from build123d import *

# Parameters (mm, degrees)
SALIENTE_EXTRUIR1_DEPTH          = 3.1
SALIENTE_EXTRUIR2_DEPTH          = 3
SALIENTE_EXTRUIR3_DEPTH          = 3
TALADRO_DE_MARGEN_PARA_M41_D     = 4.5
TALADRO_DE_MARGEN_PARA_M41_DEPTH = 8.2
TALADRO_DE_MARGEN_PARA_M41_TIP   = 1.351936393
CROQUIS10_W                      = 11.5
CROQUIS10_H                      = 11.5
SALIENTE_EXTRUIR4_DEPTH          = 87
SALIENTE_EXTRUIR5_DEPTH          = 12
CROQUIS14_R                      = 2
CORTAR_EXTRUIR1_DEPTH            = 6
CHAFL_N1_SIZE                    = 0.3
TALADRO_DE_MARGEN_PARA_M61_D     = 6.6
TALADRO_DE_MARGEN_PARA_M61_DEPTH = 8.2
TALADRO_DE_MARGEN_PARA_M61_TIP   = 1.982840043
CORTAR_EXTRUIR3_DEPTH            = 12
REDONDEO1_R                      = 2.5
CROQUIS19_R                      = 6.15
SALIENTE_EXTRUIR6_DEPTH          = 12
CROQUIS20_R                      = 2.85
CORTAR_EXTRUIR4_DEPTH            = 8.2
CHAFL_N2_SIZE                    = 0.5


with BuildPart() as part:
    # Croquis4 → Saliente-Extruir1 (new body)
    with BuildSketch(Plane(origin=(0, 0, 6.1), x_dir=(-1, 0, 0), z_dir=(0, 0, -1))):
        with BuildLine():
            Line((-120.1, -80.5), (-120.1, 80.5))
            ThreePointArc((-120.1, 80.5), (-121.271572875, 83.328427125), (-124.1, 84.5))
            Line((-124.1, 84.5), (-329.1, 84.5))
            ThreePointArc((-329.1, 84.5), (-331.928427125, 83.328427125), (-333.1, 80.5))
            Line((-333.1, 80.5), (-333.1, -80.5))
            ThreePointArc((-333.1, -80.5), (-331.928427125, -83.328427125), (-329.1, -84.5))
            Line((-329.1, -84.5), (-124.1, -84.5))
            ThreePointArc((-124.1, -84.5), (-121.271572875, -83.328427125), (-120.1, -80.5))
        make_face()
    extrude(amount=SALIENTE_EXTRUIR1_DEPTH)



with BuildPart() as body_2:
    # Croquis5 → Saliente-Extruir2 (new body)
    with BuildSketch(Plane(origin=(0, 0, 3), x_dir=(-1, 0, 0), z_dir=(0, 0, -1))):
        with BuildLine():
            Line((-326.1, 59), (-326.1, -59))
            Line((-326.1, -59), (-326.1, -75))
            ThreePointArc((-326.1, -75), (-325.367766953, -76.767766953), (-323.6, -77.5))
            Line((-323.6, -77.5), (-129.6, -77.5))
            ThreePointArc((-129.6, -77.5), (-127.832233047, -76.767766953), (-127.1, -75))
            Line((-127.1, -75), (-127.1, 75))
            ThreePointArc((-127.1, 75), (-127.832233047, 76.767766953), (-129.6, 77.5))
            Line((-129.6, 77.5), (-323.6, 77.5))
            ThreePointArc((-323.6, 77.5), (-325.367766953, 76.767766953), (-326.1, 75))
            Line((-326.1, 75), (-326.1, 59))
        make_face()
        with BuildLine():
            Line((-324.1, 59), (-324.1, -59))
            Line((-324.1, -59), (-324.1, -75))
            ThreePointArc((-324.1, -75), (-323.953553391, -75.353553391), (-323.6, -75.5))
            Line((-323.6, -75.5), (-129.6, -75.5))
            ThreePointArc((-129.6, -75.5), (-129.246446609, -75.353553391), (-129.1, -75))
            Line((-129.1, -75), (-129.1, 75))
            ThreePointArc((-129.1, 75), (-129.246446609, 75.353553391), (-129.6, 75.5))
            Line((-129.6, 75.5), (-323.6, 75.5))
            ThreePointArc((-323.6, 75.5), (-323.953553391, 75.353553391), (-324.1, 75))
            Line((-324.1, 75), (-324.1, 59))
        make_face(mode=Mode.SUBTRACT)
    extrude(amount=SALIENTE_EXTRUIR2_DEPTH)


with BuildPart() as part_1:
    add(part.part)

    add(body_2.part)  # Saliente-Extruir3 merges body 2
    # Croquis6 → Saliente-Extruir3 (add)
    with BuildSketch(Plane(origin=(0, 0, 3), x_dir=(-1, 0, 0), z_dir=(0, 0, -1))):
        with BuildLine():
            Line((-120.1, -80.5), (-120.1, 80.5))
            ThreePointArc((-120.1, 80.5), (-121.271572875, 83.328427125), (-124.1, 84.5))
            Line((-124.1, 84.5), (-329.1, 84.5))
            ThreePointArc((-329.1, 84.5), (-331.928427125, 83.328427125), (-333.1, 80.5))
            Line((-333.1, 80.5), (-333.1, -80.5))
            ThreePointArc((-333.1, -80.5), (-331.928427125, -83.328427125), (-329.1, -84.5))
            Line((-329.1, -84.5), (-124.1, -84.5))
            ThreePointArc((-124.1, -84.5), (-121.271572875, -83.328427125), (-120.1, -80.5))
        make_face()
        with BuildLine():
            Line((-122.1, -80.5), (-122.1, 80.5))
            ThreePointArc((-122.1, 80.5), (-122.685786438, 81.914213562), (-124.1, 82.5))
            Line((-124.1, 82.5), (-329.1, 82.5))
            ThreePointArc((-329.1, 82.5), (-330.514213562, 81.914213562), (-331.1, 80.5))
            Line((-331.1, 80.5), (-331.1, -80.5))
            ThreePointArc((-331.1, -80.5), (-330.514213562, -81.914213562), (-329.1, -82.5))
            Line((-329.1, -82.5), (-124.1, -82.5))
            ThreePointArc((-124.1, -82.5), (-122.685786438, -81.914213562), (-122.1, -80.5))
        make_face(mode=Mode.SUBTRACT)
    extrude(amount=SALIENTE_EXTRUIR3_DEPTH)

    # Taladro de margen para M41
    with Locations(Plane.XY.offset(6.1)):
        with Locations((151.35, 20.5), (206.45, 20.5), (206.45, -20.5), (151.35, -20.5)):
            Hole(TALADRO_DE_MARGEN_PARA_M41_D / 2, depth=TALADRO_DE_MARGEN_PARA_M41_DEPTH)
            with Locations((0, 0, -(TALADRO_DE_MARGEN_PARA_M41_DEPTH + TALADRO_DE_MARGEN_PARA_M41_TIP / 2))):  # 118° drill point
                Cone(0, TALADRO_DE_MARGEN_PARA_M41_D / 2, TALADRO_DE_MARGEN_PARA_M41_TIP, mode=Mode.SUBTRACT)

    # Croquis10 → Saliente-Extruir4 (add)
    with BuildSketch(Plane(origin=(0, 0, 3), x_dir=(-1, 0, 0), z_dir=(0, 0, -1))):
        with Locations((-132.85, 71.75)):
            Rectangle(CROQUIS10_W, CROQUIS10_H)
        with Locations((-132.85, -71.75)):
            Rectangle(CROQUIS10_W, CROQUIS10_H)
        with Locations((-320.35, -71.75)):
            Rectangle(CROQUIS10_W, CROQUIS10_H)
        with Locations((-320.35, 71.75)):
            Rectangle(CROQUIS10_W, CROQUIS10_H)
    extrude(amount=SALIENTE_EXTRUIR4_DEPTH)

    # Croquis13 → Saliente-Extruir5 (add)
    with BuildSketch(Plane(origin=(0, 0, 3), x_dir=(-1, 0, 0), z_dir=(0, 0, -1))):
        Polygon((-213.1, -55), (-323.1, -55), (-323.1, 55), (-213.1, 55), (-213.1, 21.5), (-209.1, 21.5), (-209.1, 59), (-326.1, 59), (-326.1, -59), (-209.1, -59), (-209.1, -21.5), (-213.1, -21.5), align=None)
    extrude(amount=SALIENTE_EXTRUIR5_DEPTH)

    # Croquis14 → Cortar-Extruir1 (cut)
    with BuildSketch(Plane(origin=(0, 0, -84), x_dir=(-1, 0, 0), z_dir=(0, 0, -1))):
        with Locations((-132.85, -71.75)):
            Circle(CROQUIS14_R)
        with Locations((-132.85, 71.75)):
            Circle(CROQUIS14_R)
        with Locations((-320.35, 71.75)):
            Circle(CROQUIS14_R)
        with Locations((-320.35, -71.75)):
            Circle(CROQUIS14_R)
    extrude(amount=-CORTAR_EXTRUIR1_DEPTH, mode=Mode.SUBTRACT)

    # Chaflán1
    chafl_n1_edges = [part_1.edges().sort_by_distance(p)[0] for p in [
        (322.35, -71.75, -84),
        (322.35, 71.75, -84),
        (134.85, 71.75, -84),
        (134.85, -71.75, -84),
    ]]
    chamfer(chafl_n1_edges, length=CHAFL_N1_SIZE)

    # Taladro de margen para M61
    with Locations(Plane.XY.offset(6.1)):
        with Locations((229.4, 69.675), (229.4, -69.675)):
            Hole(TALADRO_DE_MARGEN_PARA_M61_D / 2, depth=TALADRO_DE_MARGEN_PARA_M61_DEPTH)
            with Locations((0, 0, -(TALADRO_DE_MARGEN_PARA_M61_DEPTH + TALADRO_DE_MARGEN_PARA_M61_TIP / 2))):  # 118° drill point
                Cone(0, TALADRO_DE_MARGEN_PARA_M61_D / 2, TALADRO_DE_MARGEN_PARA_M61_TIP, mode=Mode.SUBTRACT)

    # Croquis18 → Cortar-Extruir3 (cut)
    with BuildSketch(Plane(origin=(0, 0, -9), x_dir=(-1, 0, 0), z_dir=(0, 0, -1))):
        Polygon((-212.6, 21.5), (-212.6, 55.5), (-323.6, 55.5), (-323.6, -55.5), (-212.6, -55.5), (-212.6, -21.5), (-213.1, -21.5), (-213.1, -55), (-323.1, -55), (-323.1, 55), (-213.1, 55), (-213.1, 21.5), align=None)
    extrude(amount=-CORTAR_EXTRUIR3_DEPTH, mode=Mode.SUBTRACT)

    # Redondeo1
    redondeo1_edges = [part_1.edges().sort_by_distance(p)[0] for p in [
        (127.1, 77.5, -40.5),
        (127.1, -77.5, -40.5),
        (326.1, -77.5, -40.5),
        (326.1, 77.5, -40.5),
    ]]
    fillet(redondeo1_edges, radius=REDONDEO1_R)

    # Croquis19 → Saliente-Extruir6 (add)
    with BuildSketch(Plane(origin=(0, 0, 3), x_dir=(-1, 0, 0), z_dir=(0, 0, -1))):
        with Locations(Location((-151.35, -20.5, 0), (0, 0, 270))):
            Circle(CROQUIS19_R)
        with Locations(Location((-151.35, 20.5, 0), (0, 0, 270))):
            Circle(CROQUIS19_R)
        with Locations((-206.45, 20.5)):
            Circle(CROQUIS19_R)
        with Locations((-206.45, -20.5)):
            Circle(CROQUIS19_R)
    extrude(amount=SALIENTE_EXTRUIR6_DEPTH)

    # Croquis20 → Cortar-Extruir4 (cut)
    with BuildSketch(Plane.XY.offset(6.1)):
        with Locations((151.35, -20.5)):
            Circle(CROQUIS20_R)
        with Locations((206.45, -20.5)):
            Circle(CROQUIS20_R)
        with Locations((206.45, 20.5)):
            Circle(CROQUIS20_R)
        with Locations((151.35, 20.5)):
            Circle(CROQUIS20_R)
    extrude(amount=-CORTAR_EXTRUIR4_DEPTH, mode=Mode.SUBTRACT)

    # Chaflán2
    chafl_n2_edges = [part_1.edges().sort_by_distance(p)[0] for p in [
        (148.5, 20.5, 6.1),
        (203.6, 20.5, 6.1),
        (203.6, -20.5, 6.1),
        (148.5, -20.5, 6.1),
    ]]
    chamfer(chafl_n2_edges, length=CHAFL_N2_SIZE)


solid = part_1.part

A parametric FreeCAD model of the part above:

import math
import FreeCAD as App
import Part
import Sketcher

V = App.Vector


def edges_at(feature, points):
    """Names of the edges that pass closest to the given points."""
    edges = feature.Shape.Edges
    near = lambda p: min(range(len(edges)), key=lambda i: edges[i].distToShape(Part.Vertex(*p))[0])
    return sorted({f"Edge{near(p) + 1}" for p in points})

doc = App.newDocument("Part")
body = doc.addObject("PartDesign::Body", "Body")

# Sketch on XY plane
sketch1 = body.newObject("Sketcher::SketchObject", "Sketch")
sketch1.AttachmentSupport = (doc.getObject("XY_Plane"), [""])
sketch1.MapMode = "FlatFace"
sketch1.AttachmentOffset = App.Placement(V(0, 0, 6.1), App.Rotation())
sketch1.addGeometry([
    Part.LineSegment(V(120.1, -80.5, 0), V(120.1, 80.5, 0)),  # 0
    Part.ArcOfCircle(Part.Circle(V(124.1, 80.5, 0), V(0, 0, 1), 4), math.radians(90), math.radians(180)),  # 1
    Part.LineSegment(V(124.1, 84.5, 0), V(329.1, 84.5, 0)),  # 2
    Part.ArcOfCircle(Part.Circle(V(329.1, 80.5, 0), V(0, 0, 1), 4), math.radians(0), math.radians(90)),  # 3
    Part.LineSegment(V(333.1, 80.5, 0), V(333.1, -80.5, 0)),  # 4
    Part.ArcOfCircle(Part.Circle(V(329.1, -80.5, 0), V(0, 0, 1), 4), math.radians(-90), math.radians(0)),  # 5
    Part.LineSegment(V(329.1, -84.5, 0), V(124.1, -84.5, 0)),  # 6
    Part.ArcOfCircle(Part.Circle(V(124.1, -80.5, 0), V(0, 0, 1), 4), math.radians(180), math.radians(270)),  # 7
], False)
sketch1.addConstraint([
    Sketcher.Constraint("Tangent", 0, 2, 1, 2),
    Sketcher.Constraint("Tangent", 1, 1, 2, 1),
    Sketcher.Constraint("Tangent", 2, 2, 3, 2),
    Sketcher.Constraint("Tangent", 3, 1, 4, 1),
    Sketcher.Constraint("Tangent", 4, 2, 5, 2),
    Sketcher.Constraint("Tangent", 5, 1, 6, 1),
    Sketcher.Constraint("Tangent", 6, 2, 7, 2),
    Sketcher.Constraint("Tangent", 7, 1, 0, 1),
    Sketcher.Constraint("Vertical", 0),
    Sketcher.Constraint("Horizontal", 2),
    Sketcher.Constraint("Vertical", 4),
    Sketcher.Constraint("Horizontal", 6),
    Sketcher.Constraint("Equal", 1, 3),
    Sketcher.Constraint("Equal", 3, 5),
    Sketcher.Constraint("Equal", 5, 7),
    Sketcher.Constraint("Radius", 1, 4.0),
    Sketcher.Constraint("DistanceX", 2, 1, 2, 2, 205.0),
    Sketcher.Constraint("DistanceY", 0, 1, 0, 2, 161.0),
    Sketcher.Constraint("DistanceX", -1, 1, 1, 3, 124.1),
    Sketcher.Constraint("DistanceY", -1, 1, 1, 3, 80.5),
])
pad1 = body.newObject("PartDesign::Pad", "Pad")
pad1.Profile = sketch1
pad1.Length = 3.1
pad1.Reversed = True
body2 = doc.addObject("PartDesign::Body", "Body001")

# Sketch on XY plane
sketch2 = body2.newObject("Sketcher::SketchObject", "Sketch001")
sketch2.AttachmentSupport = (doc.getObject("XY_Plane001"), [""])
sketch2.MapMode = "FlatFace"
sketch2.AttachmentOffset = App.Placement(V(0, 0, 3), App.Rotation())
sketch2.addGeometry([
    Part.ArcOfCircle(Part.Circle(V(323.6, -75, 0), V(0, 0, 1), 2.5), math.radians(-90), math.radians(0)),  # 0
    Part.LineSegment(V(323.6, -77.5, 0), V(129.6, -77.5, 0)),  # 1
    Part.ArcOfCircle(Part.Circle(V(129.6, -75, 0), V(0, 0, 1), 2.5), math.radians(180), math.radians(270)),  # 2
    Part.LineSegment(V(127.1, -75, 0), V(127.1, 75, 0)),  # 3
    Part.ArcOfCircle(Part.Circle(V(129.6, 75, 0), V(0, 0, 1), 2.5), math.radians(90), math.radians(180)),  # 4
    Part.LineSegment(V(129.6, 77.5, 0), V(323.6, 77.5, 0)),  # 5
    Part.ArcOfCircle(Part.Circle(V(323.6, 75, 0), V(0, 0, 1), 2.5), math.radians(0), math.radians(90)),  # 6
    Part.LineSegment(V(326.1, 75, 0), V(326.1, -75, 0)),  # 7
    Part.ArcOfCircle(Part.Circle(V(323.6, -75, 0), V(0, 0, 1), 0.5), math.radians(-90), math.radians(0)),  # 8
    Part.LineSegment(V(324.1, -75, 0), V(324.1, 75, 0)),  # 9
    Part.ArcOfCircle(Part.Circle(V(323.6, 75, 0), V(0, 0, 1), 0.5), math.radians(0), math.radians(90)),  # 10
    Part.LineSegment(V(323.6, 75.5, 0), V(129.6, 75.5, 0)),  # 11
    Part.ArcOfCircle(Part.Circle(V(129.6, 75, 0), V(0, 0, 1), 0.5), math.radians(90), math.radians(180)),  # 12
    Part.LineSegment(V(129.1, 75, 0), V(129.1, -75, 0)),  # 13
    Part.ArcOfCircle(Part.Circle(V(129.6, -75, 0), V(0, 0, 1), 0.5), math.radians(180), math.radians(270)),  # 14
    Part.LineSegment(V(129.6, -75.5, 0), V(323.6, -75.5, 0)),  # 15
], False)
sketch2.addConstraint([
    Sketcher.Constraint("Tangent", 0, 1, 1, 1),
    Sketcher.Constraint("Tangent", 1, 2, 2, 2),
    Sketcher.Constraint("Tangent", 2, 1, 3, 1),
    Sketcher.Constraint("Tangent", 3, 2, 4, 2),
    Sketcher.Constraint("Tangent", 4, 1, 5, 1),
    Sketcher.Constraint("Tangent", 5, 2, 6, 2),
    Sketcher.Constraint("Tangent", 6, 1, 7, 1),
    Sketcher.Constraint("Tangent", 7, 2, 0, 2),
    Sketcher.Constraint("Tangent", 8, 2, 9, 1),
    Sketcher.Constraint("Tangent", 9, 2, 10, 1),
    Sketcher.Constraint("Tangent", 10, 2, 11, 1),
    Sketcher.Constraint("Tangent", 11, 2, 12, 1),
    Sketcher.Constraint("Tangent", 12, 2, 13, 1),
    Sketcher.Constraint("Tangent", 13, 2, 14, 1),
    Sketcher.Constraint("Tangent", 14, 2, 15, 1),
    Sketcher.Constraint("Tangent", 15, 2, 8, 1),
    Sketcher.Constraint("Horizontal", 1),
    Sketcher.Constraint("Vertical", 3),
    Sketcher.Constraint("Horizontal", 5),
    Sketcher.Constraint("Vertical", 7),
    Sketcher.Constraint("Vertical", 9),
    Sketcher.Constraint("Horizontal", 11),
    Sketcher.Constraint("Vertical", 13),
    Sketcher.Constraint("Horizontal", 15),
    Sketcher.Constraint("Coincident", 8, 3, 0, 3),
    Sketcher.Constraint("Coincident", 10, 3, 6, 3),
    Sketcher.Constraint("Coincident", 12, 3, 4, 3),
    Sketcher.Constraint("Equal", 0, 2),
    Sketcher.Constraint("Equal", 2, 4),
    Sketcher.Constraint("Equal", 4, 6),
    Sketcher.Constraint("Equal", 12, 14),
    Sketcher.Constraint("Radius", 0, 2.5),
    Sketcher.Constraint("Radius", 8, 0.5),
    Sketcher.Constraint("DistanceX", 1, 2, 1, 1, 194.0),
    Sketcher.Constraint("DistanceY", 3, 1, 3, 2, 150.0),
    Sketcher.Constraint("DistanceY", 0, 3, -1, 1, 75.0),
    Sketcher.Constraint("DistanceX", -1, 1, 0, 3, 323.6),
])
pad2 = body2.newObject("PartDesign::Pad", "Pad001")
pad2.Profile = sketch2
pad2.Length = 3
pad2.Reversed = True
doc.recompute()

boolean = body.newObject("PartDesign::Boolean", "Boolean")
boolean.Type = "Fuse"
boolean.addObjects([body2])

# Sketch on XY plane
sketch3 = body.newObject("Sketcher::SketchObject", "Sketch002")
sketch3.AttachmentSupport = (doc.getObject("XY_Plane"), [""])
sketch3.MapMode = "FlatFace"
sketch3.AttachmentOffset = App.Placement(V(0, 0, 3), App.Rotation())
sketch3.addGeometry([
    Part.LineSegment(V(120.1, -80.5, 0), V(120.1, 80.5, 0)),  # 0
    Part.ArcOfCircle(Part.Circle(V(124.1, 80.5, 0), V(0, 0, 1), 4), math.radians(90), math.radians(180)),  # 1
    Part.LineSegment(V(124.1, 84.5, 0), V(329.1, 84.5, 0)),  # 2
    Part.ArcOfCircle(Part.Circle(V(329.1, 80.5, 0), V(0, 0, 1), 4), math.radians(0), math.radians(90)),  # 3
    Part.LineSegment(V(333.1, 80.5, 0), V(333.1, -80.5, 0)),  # 4
    Part.ArcOfCircle(Part.Circle(V(329.1, -80.5, 0), V(0, 0, 1), 4), math.radians(-90), math.radians(0)),  # 5
    Part.LineSegment(V(329.1, -84.5, 0), V(124.1, -84.5, 0)),  # 6
    Part.ArcOfCircle(Part.Circle(V(124.1, -80.5, 0), V(0, 0, 1), 4), math.radians(180), math.radians(270)),  # 7
    Part.LineSegment(V(122.1, 80.5, 0), V(122.1, -80.5, 0)),  # 8
    Part.ArcOfCircle(Part.Circle(V(124.1, -80.5, 0), V(0, 0, 1), 2), math.radians(-180), math.radians(-90)),  # 9
    Part.LineSegment(V(124.1, -82.5, 0), V(329.1, -82.5, 0)),  # 10
    Part.ArcOfCircle(Part.Circle(V(329.1, -80.5, 0), V(0, 0, 1), 2), math.radians(-90), math.radians(0)),  # 11
    Part.LineSegment(V(331.1, -80.5, 0), V(331.1, 80.5, 0)),  # 12
    Part.ArcOfCircle(Part.Circle(V(329.1, 80.5, 0), V(0, 0, 1), 2), math.radians(0), math.radians(90)),  # 13
    Part.LineSegment(V(329.1, 82.5, 0), V(124.1, 82.5, 0)),  # 14
    Part.ArcOfCircle(Part.Circle(V(124.1, 80.5, 0), V(0, 0, 1), 2), math.radians(90), math.radians(180)),  # 15
], False)
sketch3.addConstraint([
    Sketcher.Constraint("Tangent", 0, 2, 1, 2),
    Sketcher.Constraint("Tangent", 1, 1, 2, 1),
    Sketcher.Constraint("Tangent", 2, 2, 3, 2),
    Sketcher.Constraint("Tangent", 3, 1, 4, 1),
    Sketcher.Constraint("Tangent", 4, 2, 5, 2),
    Sketcher.Constraint("Tangent", 5, 1, 6, 1),
    Sketcher.Constraint("Tangent", 6, 2, 7, 2),
    Sketcher.Constraint("Tangent", 7, 1, 0, 1),
    Sketcher.Constraint("Tangent", 8, 2, 9, 1),
    Sketcher.Constraint("Tangent", 9, 2, 10, 1),
    Sketcher.Constraint("Tangent", 10, 2, 11, 1),
    Sketcher.Constraint("Tangent", 11, 2, 12, 1),
    Sketcher.Constraint("Tangent", 12, 2, 13, 1),
    Sketcher.Constraint("Tangent", 13, 2, 14, 1),
    Sketcher.Constraint("Tangent", 14, 2, 15, 1),
    Sketcher.Constraint("Tangent", 15, 2, 8, 1),
    Sketcher.Constraint("Vertical", 0),
    Sketcher.Constraint("Horizontal", 2),
    Sketcher.Constraint("Vertical", 4),
    Sketcher.Constraint("Horizontal", 6),
    Sketcher.Constraint("Vertical", 8),
    Sketcher.Constraint("Horizontal", 10),
    Sketcher.Constraint("Vertical", 12),
    Sketcher.Constraint("Horizontal", 14),
    Sketcher.Constraint("Coincident", 9, 3, 7, 3),
    Sketcher.Constraint("Coincident", 11, 3, 5, 3),
    Sketcher.Constraint("Coincident", 13, 3, 3, 3),
    Sketcher.Constraint("Equal", 1, 3),
    Sketcher.Constraint("Equal", 3, 5),
    Sketcher.Constraint("Equal", 5, 7),
    Sketcher.Constraint("Equal", 13, 15),
    Sketcher.Constraint("Radius", 1, 4.0),
    Sketcher.Constraint("Radius", 9, 2.0),
    Sketcher.Constraint("DistanceX", 2, 1, 2, 2, 205.0),
    Sketcher.Constraint("DistanceY", 0, 1, 0, 2, 161.0),
    Sketcher.Constraint("DistanceX", -1, 1, 1, 3, 124.1),
    Sketcher.Constraint("DistanceY", -1, 1, 1, 3, 80.5),
])
pad3 = body.newObject("PartDesign::Pad", "Pad002")
pad3.Profile = sketch3
pad3.Length = 3
pad3.Reversed = True

# Sketch on XY plane
sketch4 = body.newObject("Sketcher::SketchObject", "Sketch003")
sketch4.AttachmentSupport = (doc.getObject("XY_Plane"), [""])
sketch4.MapMode = "FlatFace"
sketch4.AttachmentOffset = App.Placement(V(0, 0, 6.1), App.Rotation())
sketch4.addGeometry([
    Part.Circle(V(151.3, 20.5, 0), V(0, 0, 1), 2.2),
    Part.Circle(V(206.4, 20.5, 0), V(0, 0, 1), 2.2),
    Part.Circle(V(206.4, -20.5, 0), V(0, 0, 1), 2.2),
    Part.Circle(V(151.3, -20.5, 0), V(0, 0, 1), 2.2),
], False)
sketch4.addConstraint([
    Sketcher.Constraint("Equal", 0, 1),
    Sketcher.Constraint("Equal", 1, 2),
    Sketcher.Constraint("Equal", 2, 3),
    Sketcher.Constraint("Symmetric", 1, 3, 2, 3, -1),
    Sketcher.Constraint("Symmetric", 0, 3, 3, 3, -1),
    Sketcher.Constraint("Horizontal", 0, 3, 1, 3),
    Sketcher.Constraint("Diameter", 0, 4.5),
    Sketcher.Constraint("DistanceY", 2, 3, 1, 3, 41.0),
    Sketcher.Constraint("DistanceX", 0, 3, 1, 3, 55.1),
    Sketcher.Constraint("DistanceX", -1, 1, 0, 3, 151.35),
])
doc.recompute()
hole = body.newObject("PartDesign::Hole", "Hole")
hole.Profile = sketch4
hole.ThreadType = "None"
hole.Diameter = 4.5
hole.DepthType = "Dimension"
hole.Depth = 8.2
hole.DrillPoint = "Angled"
hole.DrillPointAngle = 118

# Sketch on XY plane
sketch5 = body.newObject("Sketcher::SketchObject", "Sketch004")
sketch5.AttachmentSupport = (doc.getObject("XY_Plane"), [""])
sketch5.MapMode = "FlatFace"
sketch5.AttachmentOffset = App.Placement(V(0, 0, 3), App.Rotation())
sketch5.addGeometry([
    Part.LineSegment(V(139, 78, 0), V(139, 66, 0)),  # 0
    Part.LineSegment(V(139, 66, 0), V(127, 66, 0)),  # 1
    Part.LineSegment(V(127, 66, 0), V(127, 78, 0)),  # 2
    Part.LineSegment(V(127, 78, 0), V(139, 78, 0)),  # 3
    Part.LineSegment(V(139, -66, 0), V(139, -78, 0)),  # 4
    Part.LineSegment(V(139, -78, 0), V(127, -78, 0)),  # 5
    Part.LineSegment(V(127, -78, 0), V(127, -66, 0)),  # 6
    Part.LineSegment(V(127, -66, 0), V(139, -66, 0)),  # 7
    Part.LineSegment(V(326, -66, 0), V(326, -78, 0)),  # 8
    Part.LineSegment(V(326, -78, 0), V(315, -78, 0)),  # 9
    Part.LineSegment(V(315, -78, 0), V(315, -66, 0)),  # 10
    Part.LineSegment(V(315, -66, 0), V(326, -66, 0)),  # 11
    Part.LineSegment(V(326, 78, 0), V(326, 66, 0)),  # 12
    Part.LineSegment(V(326, 66, 0), V(315, 66, 0)),  # 13
    Part.LineSegment(V(315, 66, 0), V(315, 78, 0)),  # 14
    Part.LineSegment(V(315, 78, 0), V(326, 78, 0)),  # 15
], False)
sketch5.addConstraint([
    Sketcher.Constraint("Coincident", 0, 2, 1, 1),
    Sketcher.Constraint("Coincident", 1, 2, 2, 1),
    Sketcher.Constraint("Coincident", 2, 2, 3, 1),
    Sketcher.Constraint("Coincident", 3, 2, 0, 1),
    Sketcher.Constraint("Coincident", 4, 2, 5, 1),
    Sketcher.Constraint("Coincident", 5, 2, 6, 1),
    Sketcher.Constraint("Coincident", 6, 2, 7, 1),
    Sketcher.Constraint("Coincident", 7, 2, 4, 1),
    Sketcher.Constraint("Coincident", 8, 2, 9, 1),
    Sketcher.Constraint("Coincident", 9, 2, 10, 1),
    Sketcher.Constraint("Coincident", 10, 2, 11, 1),
    Sketcher.Constraint("Coincident", 11, 2, 8, 1),
    Sketcher.Constraint("Coincident", 12, 2, 13, 1),
    Sketcher.Constraint("Coincident", 13, 2, 14, 1),
    Sketcher.Constraint("Coincident", 14, 2, 15, 1),
    Sketcher.Constraint("Coincident", 15, 2, 12, 1),
    Sketcher.Constraint("Vertical", 0),
    Sketcher.Constraint("Horizontal", 1),
    Sketcher.Constraint("Vertical", 2),
    Sketcher.Constraint("Horizontal", 3),
    Sketcher.Constraint("Vertical", 4),
    Sketcher.Constraint("Horizontal", 5),
    Sketcher.Constraint("Vertical", 6),
    Sketcher.Constraint("Horizontal", 7),
    Sketcher.Constraint("Vertical", 8),
    Sketcher.Constraint("Horizontal", 9),
    Sketcher.Constraint("Vertical", 10),
    Sketcher.Constraint("Horizontal", 11),
    Sketcher.Constraint("Vertical", 12),
    Sketcher.Constraint("Horizontal", 13),
    Sketcher.Constraint("Vertical", 14),
    Sketcher.Constraint("Horizontal", 15),
    Sketcher.Constraint("Symmetric", 3, 2, 4, 2, -1),
    Sketcher.Constraint("Symmetric", 1, 2, 6, 2, -1),
    Sketcher.Constraint("Symmetric", 11, 2, 12, 2, -1),
    Sketcher.Constraint("Symmetric", 9, 2, 14, 2, -1),
    Sketcher.Constraint("Horizontal", 5, 2, 8, 2),
    Sketcher.Constraint("Horizontal", 7, 2, 10, 2),
    Sketcher.Constraint("Equal", 7, 9),
    Sketcher.Constraint("Equal", 15, 0),
    Sketcher.Constraint("DistanceX", 1, 2, 1, 1, 11.5),
    Sketcher.Constraint("DistanceY", -1, 1, 0, 2, 66.0),
    Sketcher.Constraint("DistanceX", 5, 2, 8, 2, 199.0),
    Sketcher.Constraint("DistanceX", -1, 1, 0, 2, 138.6),
])
pad4 = body.newObject("PartDesign::Pad", "Pad003")
pad4.Profile = sketch5
pad4.Length = 87
pad4.Reversed = True

# Sketch on XY plane
sketch6 = body.newObject("Sketcher::SketchObject", "Sketch005")
sketch6.AttachmentSupport = (doc.getObject("XY_Plane"), [""])
sketch6.MapMode = "FlatFace"
sketch6.AttachmentOffset = App.Placement(V(0, 0, 3), App.Rotation())
sketch6.addGeometry([
    Part.LineSegment(V(213.1, -55, 0), V(323.1, -55, 0)),  # 0
    Part.LineSegment(V(323.1, -55, 0), V(323.1, 55, 0)),  # 1
    Part.LineSegment(V(323.1, 55, 0), V(213.1, 55, 0)),  # 2
    Part.LineSegment(V(213.1, 55, 0), V(213.1, 21.5, 0)),  # 3
    Part.LineSegment(V(213.1, 21.5, 0), V(209.1, 21.5, 0)),  # 4
    Part.LineSegment(V(209.1, 21.5, 0), V(209.1, 59, 0)),  # 5
    Part.LineSegment(V(209.1, 59, 0), V(326.1, 59, 0)),  # 6
    Part.LineSegment(V(326.1, 59, 0), V(326.1, -59, 0)),  # 7
    Part.LineSegment(V(326.1, -59, 0), V(209.1, -59, 0)),  # 8
    Part.LineSegment(V(209.1, -59, 0), V(209.1, -21.5, 0)),  # 9
    Part.LineSegment(V(209.1, -21.5, 0), V(213.1, -21.5, 0)),  # 10
    Part.LineSegment(V(213.1, -21.5, 0), V(213.1, -55, 0)),  # 11
], False)
sketch6.addConstraint([
    Sketcher.Constraint("Coincident", 0, 2, 1, 1),
    Sketcher.Constraint("Coincident", 1, 2, 2, 1),
    Sketcher.Constraint("Coincident", 2, 2, 3, 1),
    Sketcher.Constraint("Coincident", 3, 2, 4, 1),
    Sketcher.Constraint("Coincident", 4, 2, 5, 1),
    Sketcher.Constraint("Coincident", 5, 2, 6, 1),
    Sketcher.Constraint("Coincident", 6, 2, 7, 1),
    Sketcher.Constraint("Coincident", 7, 2, 8, 1),
    Sketcher.Constraint("Coincident", 8, 2, 9, 1),
    Sketcher.Constraint("Coincident", 9, 2, 10, 1),
    Sketcher.Constraint("Coincident", 10, 2, 11, 1),
    Sketcher.Constraint("Coincident", 11, 2, 0, 1),
    Sketcher.Constraint("Horizontal", 0),
    Sketcher.Constraint("Vertical", 1),
    Sketcher.Constraint("Horizontal", 2),
    Sketcher.Constraint("Vertical", 3),
    Sketcher.Constraint("Horizontal", 4),
    Sketcher.Constraint("Vertical", 5),
    Sketcher.Constraint("Horizontal", 6),
    Sketcher.Constraint("Vertical", 7),
    Sketcher.Constraint("Horizontal", 8),
    Sketcher.Constraint("Vertical", 9),
    Sketcher.Constraint("Horizontal", 10),
    Sketcher.Constraint("Vertical", 11),
    Sketcher.Constraint("Symmetric", 5, 2, 8, 2, -1),
    Sketcher.Constraint("Symmetric", 3, 2, 10, 2, -1),
    Sketcher.Constraint("Equal", 2, 1),
    Sketcher.Constraint("Equal", 3, 11),
    Sketcher.Constraint("DistanceX", 0, 1, 0, 2, 110.0),
    Sketcher.Constraint("DistanceX", 4, 2, 4, 1, 4.0),
    Sketcher.Constraint("DistanceX", 6, 1, 6, 2, 117.0),
    Sketcher.Constraint("DistanceY", 7, 2, 7, 1, 118.0),
    Sketcher.Constraint("DistanceY", 3, 2, 3, 1, 33.5),
    Sketcher.Constraint("DistanceX", -1, 1, 0, 2, 323.1),
])
pad5 = body.newObject("PartDesign::Pad", "Pad004")
pad5.Profile = sketch6
pad5.Length = 12
pad5.Reversed = True

# Sketch on XY plane
sketch7 = body.newObject("Sketcher::SketchObject", "Sketch006")
sketch7.AttachmentSupport = (doc.getObject("XY_Plane"), [""])
sketch7.MapMode = "FlatFace"
sketch7.AttachmentOffset = App.Placement(V(0, 0, -84), App.Rotation())
sketch7.addGeometry([
    Part.Circle(V(132.8, -71.8, 0), V(0, 0, 1), 2),
    Part.Circle(V(132.8, 71.8, 0), V(0, 0, 1), 2),
    Part.Circle(V(320.4, 71.8, 0), V(0, 0, 1), 2),
    Part.Circle(V(320.4, -71.8, 0), V(0, 0, 1), 2),
], False)
sketch7.addConstraint([
    Sketcher.Constraint("Equal", 0, 1),
    Sketcher.Constraint("Equal", 1, 2),
    Sketcher.Constraint("Equal", 2, 3),
    Sketcher.Constraint("Symmetric", 0, 3, 1, 3, -1),
    Sketcher.Constraint("Symmetric", 2, 3, 3, 3, -1),
    Sketcher.Constraint("Horizontal", 1, 3, 2, 3),
    Sketcher.Constraint("Diameter", 0, 4.0),
    Sketcher.Constraint("DistanceY", 0, 3, 1, 3, 143.5),
    Sketcher.Constraint("DistanceX", 1, 3, 2, 3, 187.5),
    Sketcher.Constraint("DistanceX", -1, 1, 0, 3, 132.85),
])
pocket1 = body.newObject("PartDesign::Pocket", "Pocket")
pocket1.Profile = sketch7
pocket1.Length = 6
pocket1.Reversed = True
doc.recompute()

chamfer = body.newObject("PartDesign::Chamfer", "Chamfer")
chamfer.Base = (pocket1, edges_at(pocket1, [
    (322.35, -71.75, -84),
    (322.35, 71.75, -84),
    (134.85, 71.75, -84),
    (134.85, -71.75, -84),
]))
chamfer.Size = 0.3

# Sketch on XY plane
sketch8 = body.newObject("Sketcher::SketchObject", "Sketch007")
sketch8.AttachmentSupport = (doc.getObject("XY_Plane"), [""])
sketch8.MapMode = "FlatFace"
sketch8.AttachmentOffset = App.Placement(V(0, 0, 6.1), App.Rotation())
sketch8.addGeometry([
    Part.Circle(V(229.4, 69.7, 0), V(0, 0, 1), 3.3),
    Part.Circle(V(229.4, -69.7, 0), V(0, 0, 1), 3.3),
], False)
sketch8.addConstraint([
    Sketcher.Constraint("Equal", 0, 1),
    Sketcher.Constraint("Symmetric", 0, 3, 1, 3, -1),
    Sketcher.Constraint("Diameter", 0, 6.6),
    Sketcher.Constraint("DistanceX", -1, 1, 0, 3, 229.4),
    Sketcher.Constraint("DistanceY", 1, 3, 0, 3, 139.35),
])
doc.recompute()
hole2 = body.newObject("PartDesign::Hole", "Hole001")
hole2.Profile = sketch8
hole2.ThreadType = "None"
hole2.Diameter = 6.6
hole2.DepthType = "Dimension"
hole2.Depth = 8.2
hole2.DrillPoint = "Angled"
hole2.DrillPointAngle = 118

# Sketch on XY plane
sketch9 = body.newObject("Sketcher::SketchObject", "Sketch008")
sketch9.AttachmentSupport = (doc.getObject("XY_Plane"), [""])
sketch9.MapMode = "FlatFace"
sketch9.AttachmentOffset = App.Placement(V(0, 0, -9), App.Rotation())
sketch9.addGeometry([
    Part.LineSegment(V(212.6, 21.5, 0), V(212.6, 55.5, 0)),  # 0
    Part.LineSegment(V(212.6, 55.5, 0), V(323.6, 55.5, 0)),  # 1
    Part.LineSegment(V(323.6, 55.5, 0), V(323.6, -55.5, 0)),  # 2
    Part.LineSegment(V(323.6, -55.5, 0), V(212.6, -55.5, 0)),  # 3
    Part.LineSegment(V(212.6, -55.5, 0), V(212.6, -21.5, 0)),  # 4
    Part.LineSegment(V(212.6, -21.5, 0), V(213.1, -21.5, 0)),  # 5
    Part.LineSegment(V(213.1, -21.5, 0), V(213.1, -55, 0)),  # 6
    Part.LineSegment(V(213.1, -55, 0), V(323.1, -55, 0)),  # 7
    Part.LineSegment(V(323.1, -55, 0), V(323.1, 55, 0)),  # 8
    Part.LineSegment(V(323.1, 55, 0), V(213.1, 55, 0)),  # 9
    Part.LineSegment(V(213.1, 55, 0), V(213.1, 21.5, 0)),  # 10
    Part.LineSegment(V(213.1, 21.5, 0), V(212.6, 21.5, 0)),  # 11
], False)
sketch9.addConstraint([
    Sketcher.Constraint("Coincident", 0, 2, 1, 1),
    Sketcher.Constraint("Coincident", 1, 2, 2, 1),
    Sketcher.Constraint("Coincident", 2, 2, 3, 1),
    Sketcher.Constraint("Coincident", 3, 2, 4, 1),
    Sketcher.Constraint("Coincident", 4, 2, 5, 1),
    Sketcher.Constraint("Coincident", 5, 2, 6, 1),
    Sketcher.Constraint("Coincident", 6, 2, 7, 1),
    Sketcher.Constraint("Coincident", 7, 2, 8, 1),
    Sketcher.Constraint("Coincident", 8, 2, 9, 1),
    Sketcher.Constraint("Coincident", 9, 2, 10, 1),
    Sketcher.Constraint("Coincident", 10, 2, 11, 1),
    Sketcher.Constraint("Coincident", 11, 2, 0, 1),
    Sketcher.Constraint("Vertical", 0),
    Sketcher.Constraint("Horizontal", 1),
    Sketcher.Constraint("Vertical", 2),
    Sketcher.Constraint("Horizontal", 3),
    Sketcher.Constraint("Vertical", 4),
    Sketcher.Constraint("Horizontal", 5),
    Sketcher.Constraint("Vertical", 6),
    Sketcher.Constraint("Horizontal", 7),
    Sketcher.Constraint("Vertical", 8),
    Sketcher.Constraint("Horizontal", 9),
    Sketcher.Constraint("Vertical", 10),
    Sketcher.Constraint("Horizontal", 11),
    Sketcher.Constraint("Symmetric", 0, 2, 3, 2, -1),
    Sketcher.Constraint("Symmetric", 6, 2, 9, 2, -1),
    Sketcher.Constraint("Equal", 3, 2),
    Sketcher.Constraint("Equal", 0, 4),
    Sketcher.Constraint("Equal", 9, 8),
    Sketcher.Constraint("DistanceX", 1, 1, 1, 2, 111.0),
    Sketcher.Constraint("DistanceX", 7, 1, 7, 2, 110.0),
    Sketcher.Constraint("DistanceY", 0, 1, 0, 2, 34.0),
    Sketcher.Constraint("DistanceX", 5, 1, 5, 2, 0.5),
    Sketcher.Constraint("DistanceX", -1, 1, 0, 2, 212.6),
])
pocket2 = body.newObject("PartDesign::Pocket", "Pocket001")
pocket2.Profile = sketch9
pocket2.Length = 12
pocket2.Reversed = True
doc.recompute()

fillet = body.newObject("PartDesign::Fillet", "Fillet")
fillet.Base = (pocket2, edges_at(pocket2, [
    (127.1, 77.5, -40.5),
    (127.1, -77.5, -40.5),
    (326.1, -77.5, -40.5),
    (326.1, 77.5, -40.5),
]))
fillet.Radius = 2.5

# Sketch on XY plane
sketch10 = body.newObject("Sketcher::SketchObject", "Sketch009")
sketch10.AttachmentSupport = (doc.getObject("XY_Plane"), [""])
sketch10.MapMode = "FlatFace"
sketch10.AttachmentOffset = App.Placement(V(0, 0, 3), App.Rotation())
sketch10.addGeometry([
    Part.Circle(V(151, -20, 0), V(0, 0, 1), 6),
    Part.Circle(V(151, 20, 0), V(0, 0, 1), 6),
    Part.Circle(V(206, 20, 0), V(0, 0, 1), 6),
    Part.Circle(V(206, -20, 0), V(0, 0, 1), 6),
], False)
sketch10.addConstraint([
    Sketcher.Constraint("Equal", 0, 1),
    Sketcher.Constraint("Equal", 1, 2),
    Sketcher.Constraint("Equal", 2, 3),
    Sketcher.Constraint("Symmetric", 0, 3, 1, 3, -1),
    Sketcher.Constraint("Symmetric", 2, 3, 3, 3, -1),
    Sketcher.Constraint("Horizontal", 1, 3, 2, 3),
    Sketcher.Constraint("Diameter", 0, 12.3),
    Sketcher.Constraint("DistanceY", 0, 3, 1, 3, 41.0),
    Sketcher.Constraint("DistanceX", 1, 3, 2, 3, 55.1),
    Sketcher.Constraint("DistanceX", -1, 1, 0, 3, 151.35),
])
pad6 = body.newObject("PartDesign::Pad", "Pad005")
pad6.Profile = sketch10
pad6.Length = 12
pad6.Reversed = True

# Sketch on XY plane
sketch11 = body.newObject("Sketcher::SketchObject", "Sketch010")
sketch11.AttachmentSupport = (doc.getObject("XY_Plane"), [""])
sketch11.MapMode = "FlatFace"
sketch11.AttachmentOffset = App.Placement(V(0, 0, 6.1), App.Rotation())
sketch11.addGeometry([
    Part.Circle(V(151.3, -20.5, 0), V(0, 0, 1), 2.9),
    Part.Circle(V(206.4, -20.5, 0), V(0, 0, 1), 2.9),
    Part.Circle(V(206.4, 20.5, 0), V(0, 0, 1), 2.9),
    Part.Circle(V(151.3, 20.5, 0), V(0, 0, 1), 2.9),
], False)
sketch11.addConstraint([
    Sketcher.Constraint("Equal", 0, 1),
    Sketcher.Constraint("Equal", 1, 2),
    Sketcher.Constraint("Equal", 2, 3),
    Sketcher.Constraint("Symmetric", 1, 3, 2, 3, -1),
    Sketcher.Constraint("Symmetric", 0, 3, 3, 3, -1),
    Sketcher.Constraint("Horizontal", 0, 3, 1, 3),
    Sketcher.Constraint("Diameter", 0, 5.7),
    Sketcher.Constraint("DistanceY", 1, 3, 2, 3, 41.0),
    Sketcher.Constraint("DistanceX", 0, 3, 1, 3, 55.1),
    Sketcher.Constraint("DistanceX", -1, 1, 0, 3, 151.35),
])
pocket3 = body.newObject("PartDesign::Pocket", "Pocket002")
pocket3.Profile = sketch11
pocket3.Length = 8.2
doc.recompute()

chamfer2 = body.newObject("PartDesign::Chamfer", "Chamfer001")
chamfer2.Base = (pocket3, edges_at(pocket3, [
    (148.5, 20.5, 6.1),
    (203.6, 20.5, 6.1),
    (203.6, -20.5, 6.1),
    (148.5, -20.5, 6.1),
]))
chamfer2.Size = 0.5

doc.recompute()
